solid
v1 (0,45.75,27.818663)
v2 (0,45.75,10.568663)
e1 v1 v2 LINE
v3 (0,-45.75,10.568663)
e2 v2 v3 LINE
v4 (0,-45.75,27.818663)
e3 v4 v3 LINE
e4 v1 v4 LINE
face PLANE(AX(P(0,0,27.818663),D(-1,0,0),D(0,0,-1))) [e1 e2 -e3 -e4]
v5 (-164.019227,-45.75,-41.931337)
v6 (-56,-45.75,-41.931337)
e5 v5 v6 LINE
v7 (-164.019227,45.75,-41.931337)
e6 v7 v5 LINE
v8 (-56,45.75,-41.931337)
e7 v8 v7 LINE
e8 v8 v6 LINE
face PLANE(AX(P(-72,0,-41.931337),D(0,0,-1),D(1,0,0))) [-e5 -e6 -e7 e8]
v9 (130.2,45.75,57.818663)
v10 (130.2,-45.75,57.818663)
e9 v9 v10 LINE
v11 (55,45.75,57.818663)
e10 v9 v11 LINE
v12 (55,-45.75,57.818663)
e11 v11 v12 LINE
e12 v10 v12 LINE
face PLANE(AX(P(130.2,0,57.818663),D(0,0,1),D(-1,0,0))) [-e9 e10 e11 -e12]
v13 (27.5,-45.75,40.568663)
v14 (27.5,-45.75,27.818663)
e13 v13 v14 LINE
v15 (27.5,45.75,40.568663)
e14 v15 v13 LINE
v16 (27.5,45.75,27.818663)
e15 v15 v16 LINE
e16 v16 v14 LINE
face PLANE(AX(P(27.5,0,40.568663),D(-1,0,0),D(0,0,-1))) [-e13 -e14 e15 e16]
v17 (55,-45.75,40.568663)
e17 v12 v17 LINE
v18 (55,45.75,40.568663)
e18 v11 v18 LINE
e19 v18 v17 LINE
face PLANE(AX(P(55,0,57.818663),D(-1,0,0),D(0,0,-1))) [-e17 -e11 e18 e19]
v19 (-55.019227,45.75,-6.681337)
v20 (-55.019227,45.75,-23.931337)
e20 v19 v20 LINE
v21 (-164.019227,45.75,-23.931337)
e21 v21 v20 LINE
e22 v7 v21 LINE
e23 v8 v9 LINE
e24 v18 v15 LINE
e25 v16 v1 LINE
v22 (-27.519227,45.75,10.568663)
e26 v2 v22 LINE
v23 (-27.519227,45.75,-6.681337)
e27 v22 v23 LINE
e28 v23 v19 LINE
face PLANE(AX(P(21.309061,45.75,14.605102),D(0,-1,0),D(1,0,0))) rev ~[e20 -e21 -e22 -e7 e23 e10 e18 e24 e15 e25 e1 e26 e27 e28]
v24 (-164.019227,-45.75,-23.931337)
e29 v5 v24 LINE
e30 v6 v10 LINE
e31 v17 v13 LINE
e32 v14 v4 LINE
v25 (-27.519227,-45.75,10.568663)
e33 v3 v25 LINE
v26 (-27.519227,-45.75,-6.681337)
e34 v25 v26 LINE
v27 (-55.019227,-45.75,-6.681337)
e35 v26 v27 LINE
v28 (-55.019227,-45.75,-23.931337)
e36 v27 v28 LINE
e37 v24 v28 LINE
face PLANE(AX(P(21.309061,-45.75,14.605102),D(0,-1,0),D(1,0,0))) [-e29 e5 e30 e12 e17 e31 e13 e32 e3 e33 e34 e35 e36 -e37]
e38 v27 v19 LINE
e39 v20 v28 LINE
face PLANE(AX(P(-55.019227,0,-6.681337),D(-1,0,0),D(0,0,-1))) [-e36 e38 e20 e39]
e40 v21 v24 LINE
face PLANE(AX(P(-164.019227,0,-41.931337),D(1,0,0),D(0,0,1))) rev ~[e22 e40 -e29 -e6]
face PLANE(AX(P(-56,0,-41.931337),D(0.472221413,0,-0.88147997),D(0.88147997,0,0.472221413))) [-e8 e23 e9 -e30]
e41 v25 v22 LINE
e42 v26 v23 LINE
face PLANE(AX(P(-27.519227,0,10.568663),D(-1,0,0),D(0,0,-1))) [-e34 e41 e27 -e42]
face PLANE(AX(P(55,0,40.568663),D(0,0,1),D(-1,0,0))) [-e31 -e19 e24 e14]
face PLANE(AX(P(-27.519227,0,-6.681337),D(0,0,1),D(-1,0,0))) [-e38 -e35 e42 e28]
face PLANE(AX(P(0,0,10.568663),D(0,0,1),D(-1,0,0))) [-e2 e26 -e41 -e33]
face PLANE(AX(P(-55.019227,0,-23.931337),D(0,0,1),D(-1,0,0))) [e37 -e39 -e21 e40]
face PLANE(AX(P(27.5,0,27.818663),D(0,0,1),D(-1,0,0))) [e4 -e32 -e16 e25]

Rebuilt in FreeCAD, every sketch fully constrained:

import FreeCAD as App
import Part
import Sketcher

V = App.Vector


def add_polygon(sketch, points):
    """Adds a closed chain of lines whose ends are joined by coincident constraints."""
    first, n = sketch.GeometryCount, len(points)
    for a, b in zip(points, points[1:] + points[:1]):
        sketch.addGeometry(Part.LineSegment(App.Vector(*a, 0), App.Vector(*b, 0)), False)
    for i in range(n):
        sketch.addConstraint(Sketcher.Constraint("Coincident", first + i, 2, first + (i + 1) % n, 1))

doc = App.newDocument("Part")
body = doc.addObject("PartDesign::Body", "Body")

# Sketch on XZ plane
sketch1 = body.newObject("Sketcher::SketchObject", "Sketch")
sketch1.AttachmentSupport = (doc.getObject("XZ_Plane"), [""])
sketch1.MapMode = "FlatFace"
add_polygon(sketch1, [(-55, -7), (-55, -24), (-72, -24), (-72, -42), (-56, -42), (130, 58), (55, 58), (55, 41), (28, 41), (28, 28), (0, 28), (0, 11), (-28, 11), (-28, -7)])  # lines 0-13
sketch1.addConstraint([
    Sketcher.Constraint("Vertical", 0),
    Sketcher.Constraint("Horizontal", 1),
    Sketcher.Constraint("Vertical", 2),
    Sketcher.Constraint("Horizontal", 3),
    Sketcher.Constraint("Horizontal", 5),
    Sketcher.Constraint("Vertical", 6),
    Sketcher.Constraint("Horizontal", 7),
    Sketcher.Constraint("Vertical", 8),
    Sketcher.Constraint("Horizontal", 9),
    Sketcher.Constraint("Vertical", 10),
    Sketcher.Constraint("Horizontal", 11),
    Sketcher.Constraint("Vertical", 12),
    Sketcher.Constraint("Horizontal", 13),
    Sketcher.Constraint("PointOnObject", 9, 2, -2),
    Sketcher.Constraint("Equal", 7, 9),
    Sketcher.Constraint("Equal", 9, 13),
    Sketcher.Constraint("Equal", 0, 6),
    Sketcher.Constraint("Equal", 6, 10),
    Sketcher.Constraint("Equal", 10, 12),
    Sketcher.Constraint("DistanceX", 3, 1, 3, 2, 16.0),
    Sketcher.Constraint("DistanceY", 2, 2, 2, 1, 18.0),
    Sketcher.Constraint("DistanceX", 5, 2, 5, 1, 75.2),
    Sketcher.Constraint("DistanceX", 7, 2, 7, 1, 27.5),
    Sketcher.Constraint("DistanceX", 1, 2, -1, 1, 72.0),
    Sketcher.Constraint("DistanceY", 8, 2, 5, 2, 30.0),
    Sketcher.Constraint("DistanceY", 0, 2, 0, 1, 17.25),
    Sketcher.Constraint("DistanceX", 1, 2, 1, 1, 16.980773),
    Sketcher.Constraint("DistanceY", 0, 2, -1, 1, 23.931337),
])
pad1 = body.newObject("PartDesign::Pad", "Pad")
pad1.Profile = sketch1
pad1.Length = 91.5
pad1.Midplane = True

# Sketch on XZ plane
sketch2 = body.newObject("Sketcher::SketchObject", "Sketch001")
sketch2.AttachmentSupport = (doc.getObject("XZ_Plane"), [""])
sketch2.MapMode = "FlatFace"
add_polygon(sketch2, [(-55, -7), (-55, -24), (-164, -24), (-164, -42), (-56, -42), (130, 58), (55, 58), (55, 41), (28, 41), (28, 28), (0, 28), (0, 11), (-28, 11), (-28, -7)])  # lines 0-13
sketch2.addConstraint([
    Sketcher.Constraint("Vertical", 0),
    Sketcher.Constraint("Horizontal", 1),
    Sketcher.Constraint("Vertical", 2),
    Sketcher.Constraint("Horizontal", 3),
    Sketcher.Constraint("Horizontal", 5),
    Sketcher.Constraint("Vertical", 6),
    Sketcher.Constraint("Horizontal", 7),
    Sketcher.Constraint("Vertical", 8),
    Sketcher.Constraint("Horizontal", 9),
    Sketcher.Constraint("Vertical", 10),
    Sketcher.Constraint("Horizontal", 11),
    Sketcher.Constraint("Vertical", 12),
    Sketcher.Constraint("Horizontal", 13),
    Sketcher.Constraint("PointOnObject", 9, 2, -2),
    Sketcher.Constraint("Equal", 7, 9),
    Sketcher.Constraint("Equal", 9, 13),
    Sketcher.Constraint("Equal", 0, 6),
    Sketcher.Constraint("Equal", 6, 10),
    Sketcher.Constraint("Equal", 10, 12),
    Sketcher.Constraint("DistanceX", 1, 2, 1, 1, 109.0),
    Sketcher.Constraint("DistanceY", 2, 2, 2, 1, 18.0),
    Sketcher.Constraint("DistanceX", 5, 2, 5, 1, 75.2),
    Sketcher.Constraint("DistanceX", 7, 2, 7, 1, 27.5),
    Sketcher.Constraint("DistanceX", 3, 2, -1, 1, 56.0),
    Sketcher.Constraint("DistanceY", 8, 2, 5, 2, 30.0),
    Sketcher.Constraint("DistanceY", 0, 2, 0, 1, 17.25),
    Sketcher.Constraint("DistanceX", 3, 1, 3, 2, 108.019227),
    Sketcher.Constraint("DistanceY", 0, 2, -1, 1, 23.931337),
])
pad2 = body.newObject("PartDesign::Pad", "Pad001")
pad2.Profile = sketch2
pad2.Length = 91.5
pad2.Midplane = True

doc.recompute()
